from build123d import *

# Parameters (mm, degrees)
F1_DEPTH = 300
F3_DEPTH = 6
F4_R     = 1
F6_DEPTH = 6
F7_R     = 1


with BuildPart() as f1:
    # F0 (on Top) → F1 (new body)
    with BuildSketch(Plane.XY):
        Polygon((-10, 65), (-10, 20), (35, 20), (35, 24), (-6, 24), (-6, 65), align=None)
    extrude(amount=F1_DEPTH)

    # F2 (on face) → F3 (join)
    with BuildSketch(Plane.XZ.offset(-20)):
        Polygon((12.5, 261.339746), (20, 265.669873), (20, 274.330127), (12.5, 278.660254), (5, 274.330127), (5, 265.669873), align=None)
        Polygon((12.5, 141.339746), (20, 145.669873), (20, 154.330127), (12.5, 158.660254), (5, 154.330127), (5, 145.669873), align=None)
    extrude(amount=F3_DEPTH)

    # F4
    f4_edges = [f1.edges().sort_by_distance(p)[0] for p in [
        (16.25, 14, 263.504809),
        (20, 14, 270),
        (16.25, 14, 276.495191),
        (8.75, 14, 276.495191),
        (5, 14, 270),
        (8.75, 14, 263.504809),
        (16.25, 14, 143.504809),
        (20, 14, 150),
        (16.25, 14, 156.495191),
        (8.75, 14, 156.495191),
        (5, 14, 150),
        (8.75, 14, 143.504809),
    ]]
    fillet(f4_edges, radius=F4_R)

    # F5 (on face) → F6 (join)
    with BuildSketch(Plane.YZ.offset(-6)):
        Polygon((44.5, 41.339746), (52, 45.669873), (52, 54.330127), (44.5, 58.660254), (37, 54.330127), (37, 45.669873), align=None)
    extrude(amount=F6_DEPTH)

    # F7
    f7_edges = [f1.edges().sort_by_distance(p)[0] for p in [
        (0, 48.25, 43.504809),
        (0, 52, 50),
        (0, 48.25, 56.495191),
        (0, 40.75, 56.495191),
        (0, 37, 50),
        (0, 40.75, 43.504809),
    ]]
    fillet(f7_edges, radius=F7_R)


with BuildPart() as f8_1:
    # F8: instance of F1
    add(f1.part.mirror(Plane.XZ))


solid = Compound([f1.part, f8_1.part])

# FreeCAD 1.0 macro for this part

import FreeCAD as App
import Part
import Sketcher
Q = App.Units.Quantity


def edges_at(feature, points):
    """Names of the edges that pass closest to the given points."""
    edges = feature.Shape.Edges
    near = lambda p: min(range(len(edges)), key=lambda i: edges[i].distToShape(Part.Vertex(*p))[0])
    return sorted({f"Edge{near(p) + 1}" for p in points})

doc = App.newDocument("Part")
body = doc.addObject("PartDesign::Body", "Body")

# Sketch on XY plane
sketch1 = doc.addObject("Sketcher::SketchObject", "Sketch")
body.addObject(sketch1)
sketch1.AttachmentSupport = (doc.XY_Plane, [""])
sketch1.MapMode = "FlatFace"
sketch1.addGeometry(Part.LineSegment(App.Vector(-10, 65, 0), App.Vector(-10, 20, 0)), False)
sketch1.addGeometry(Part.LineSegment(App.Vector(-10, 20, 0), App.Vector(35, 20, 0)), False)
sketch1.addGeometry(Part.LineSegment(App.Vector(35, 20, 0), App.Vector(35, 24, 0)), False)
sketch1.addGeometry(Part.LineSegment(App.Vector(35, 24, 0), App.Vector(-6, 24, 0)), False)
sketch1.addGeometry(Part.LineSegment(App.Vector(-6, 24, 0), App.Vector(-6, 65, 0)), False)
sketch1.addGeometry(Part.LineSegment(App.Vector(-6, 65, 0), App.Vector(-10, 65, 0)), False)
sketch1.addConstraint(Sketcher.Constraint("Coincident", 0, 2, 1, 1))
sketch1.addConstraint(Sketcher.Constraint("Coincident", 1, 2, 2, 1))
sketch1.addConstraint(Sketcher.Constraint("Coincident", 2, 2, 3, 1))
sketch1.addConstraint(Sketcher.Constraint("Coincident", 3, 2, 4, 1))
sketch1.addConstraint(Sketcher.Constraint("Coincident", 4, 2, 5, 1))
sketch1.addConstraint(Sketcher.Constraint("Coincident", 5, 2, 0, 1))
sketch1.addConstraint(Sketcher.Constraint("Vertical", 0))
sketch1.addConstraint(Sketcher.Constraint("Horizontal", 1))
sketch1.addConstraint(Sketcher.Constraint("Vertical", 2))
sketch1.addConstraint(Sketcher.Constraint("Horizontal", 3))
sketch1.addConstraint(Sketcher.Constraint("Vertical", 4))
sketch1.addConstraint(Sketcher.Constraint("Horizontal", 5))
sketch1.addConstraint(Sketcher.Constraint("Equal", 1, 0))
sketch1.addConstraint(Sketcher.Constraint("Equal", 5, 2))
sketch1.addConstraint(Sketcher.Constraint("DistanceX", 1, 1, 1, 2, Q("45 mm")))
sketch1.addConstraint(Sketcher.Constraint("DistanceX", 3, 2, 3, 1, Q("41 mm")))
sketch1.addConstraint(Sketcher.Constraint("DistanceX", 0, 2, -1, 1, Q("10 mm")))
sketch1.addConstraint(Sketcher.Constraint("DistanceY", -1, 1, 0, 2, Q("20 mm")))
pad1 = doc.addObject("PartDesign::Pad", "Pad")
body.addObject(pad1)
pad1.Profile = sketch1
pad1.Length = 300

# Sketch on XZ plane
sketch2 = doc.addObject("Sketcher::SketchObject", "Sketch001")
body.addObject(sketch2)
sketch2.AttachmentSupport = (doc.XZ_Plane, [""])
sketch2.MapMode = "FlatFace"
sketch2.AttachmentOffset = App.Placement(App.Vector(0, 0, -20), App.Rotation())
sketch2.addGeometry(Part.LineSegment(App.Vector(12, 261, 0), App.Vector(20, 266, 0)), False)
sketch2.addGeometry(Part.LineSegment(App.Vector(20, 266, 0), App.Vector(20, 274, 0)), False)
sketch2.addGeometry(Part.LineSegment(App.Vector(20, 274, 0), App.Vector(12, 279, 0)), False)
sketch2.addGeometry(Part.LineSegment(App.Vector(12, 279, 0), App.Vector(5, 274, 0)), False)
sketch2.addGeometry(Part.LineSegment(App.Vector(5, 274, 0), App.Vector(5, 266, 0)), False)
sketch2.addGeometry(Part.LineSegment(App.Vector(5, 266, 0), App.Vector(12, 261, 0)), False)
sketch2.addGeometry(Part.LineSegment(App.Vector(12, 141, 0), App.Vector(20, 146, 0)), False)
sketch2.addGeometry(Part.LineSegment(App.Vector(20, 146, 0), App.Vector(20, 154, 0)), False)
sketch2.addGeometry(Part.LineSegment(App.Vector(20, 154, 0), App.Vector(12, 159, 0)), False)
sketch2.addGeometry(Part.LineSegment(App.Vector(12, 159, 0), App.Vector(5, 154, 0)), False)
sketch2.addGeometry(Part.LineSegment(App.Vector(5, 154, 0), App.Vector(5, 146, 0)), False)
sketch2.addGeometry(Part.LineSegment(App.Vector(5, 146, 0), App.Vector(12, 141, 0)), False)
sketch2.addConstraint(Sketcher.Constraint("Coincident", 0, 2, 1, 1))
sketch2.addConstraint(Sketcher.Constraint("Coincident", 1, 2, 2, 1))
sketch2.addConstraint(Sketcher.Constraint("Coincident", 2, 2, 3, 1))
sketch2.addConstraint(Sketcher.Constraint("Coincident", 3, 2, 4, 1))
sketch2.addConstraint(Sketcher.Constraint("Coincident", 4, 2, 5, 1))
sketch2.addConstraint(Sketcher.Constraint("Coincident", 5, 2, 0, 1))
sketch2.addConstraint(Sketcher.Constraint("Coincident", 6, 2, 7, 1))
sketch2.addConstraint(Sketcher.Constraint("Coincident", 7, 2, 8, 1))
sketch2.addConstraint(Sketcher.Constraint("Coincident", 8, 2, 9, 1))
sketch2.addConstraint(Sketcher.Constraint("Coincident", 9, 2, 10, 1))
sketch2.addConstraint(Sketcher.Constraint("Coincident", 10, 2, 11, 1))
sketch2.addConstraint(Sketcher.Constraint("Coincident", 11, 2, 6, 1))
sketch2.addConstraint(Sketcher.Constraint("Vertical", 1))
sketch2.addConstraint(Sketcher.Constraint("Vertical", 4))
sketch2.addConstraint(Sketcher.Constraint("Vertical", 7))
sketch2.addConstraint(Sketcher.Constraint("Vertical", 10))
sketch2.addConstraint(Sketcher.Constraint("Parallel", 0, 3))
sketch2.addConstraint(Sketcher.Constraint("Parallel", 2, 5))
sketch2.addConstraint(Sketcher.Constraint("Parallel", 3, 6))
sketch2.addConstraint(Sketcher.Constraint("Parallel", 5, 8))
sketch2.addConstraint(Sketcher.Constraint("Parallel", 6, 9))
sketch2.addConstraint(Sketcher.Constraint("Parallel", 8, 11))
sketch2.addConstraint(Sketcher.Constraint("Horizontal", 1, 2, 3, 2))
sketch2.addConstraint(Sketcher.Constraint("Horizontal", 0, 2, 4, 2))
sketch2.addConstraint(Sketcher.Constraint("Horizontal", 7, 2, 9, 2))
sketch2.addConstraint(Sketcher.Constraint("Horizontal", 6, 2, 10, 2))
sketch2.addConstraint(Sketcher.Constraint("Vertical", 2, 2, 5, 2))
sketch2.addConstraint(Sketcher.Constraint("Vertical", 1, 2, 6, 2))
sketch2.addConstraint(Sketcher.Constraint("Vertical", 5, 2, 8, 2))
sketch2.addConstraint(Sketcher.Constraint("Equal", 4, 7))
sketch2.addConstraint(Sketcher.Constraint("Angle", 0, Q("30 deg")))
sketch2.addConstraint(Sketcher.Constraint("DistanceX", -1, 1, 0, 2, Q("20 mm")))
sketch2.addConstraint(Sketcher.Constraint("DistanceX", -1, 1, 3, 2, Q("5 mm")))
sketch2.addConstraint(Sketcher.Constraint("DistanceY", 6, 2, 0, 2, Q("120 mm")))
sketch2.addConstraint(Sketcher.Constraint("DistanceY", 1, 1, 1, 2, Q("8.660254 mm")))
sketch2.addConstraint(Sketcher.Constraint("DistanceY", -1, 1, 0, 2, Q("265.669873 mm")))
pad2 = doc.addObject("PartDesign::Pad", "Pad001")
body.addObject(pad2)
pad2.Profile = sketch2
pad2.Length = 6
doc.recompute()

fillet = doc.addObject("PartDesign::Fillet", "Fillet")
body.addObject(fillet)
fillet.Base = (pad2, edges_at(pad2, [
    (16.25, 14, 263.505),
    (20, 14, 270),
    (16.25, 14, 276.495),
    (8.75, 14, 276.495),
    (5, 14, 270),
    (8.75, 14, 263.505),
    (16.25, 14, 143.505),
    (20, 14, 150),
    (16.25, 14, 156.495),
    (8.75, 14, 156.495),
    (5, 14, 150),
    (8.75, 14, 143.505),
]))
fillet.Radius = 1

# Sketch on YZ plane
sketch3 = doc.addObject("Sketcher::SketchObject", "Sketch002")
body.addObject(sketch3)
sketch3.AttachmentSupport = (doc.YZ_Plane, [""])
sketch3.MapMode = "FlatFace"
sketch3.AttachmentOffset = App.Placement(App.Vector(0, 0, -6), App.Rotation())
sketch3.addGeometry(Part.LineSegment(App.Vector(44, 41, 0), App.Vector(52, 46, 0)), False)
sketch3.addGeometry(Part.LineSegment(App.Vector(52, 46, 0), App.Vector(52, 54, 0)), False)
sketch3.addGeometry(Part.LineSegment(App.Vector(52, 54, 0), App.Vector(44, 59, 0)), False)
sketch3.addGeometry(Part.LineSegment(App.Vector(44, 59, 0), App.Vector(37, 54, 0)), False)
sketch3.addGeometry(Part.LineSegment(App.Vector(37, 54, 0), App.Vector(37, 46, 0)), False)
sketch3.addGeometry(Part.LineSegment(App.Vector(37, 46, 0), App.Vector(44, 41, 0)), False)
sketch3.addConstraint(Sketcher.Constraint("Coincident", 0, 2, 1, 1))
sketch3.addConstraint(Sketcher.Constraint("Coincident", 1, 2, 2, 1))
sketch3.addConstraint(Sketcher.Constraint("Coincident", 2, 2, 3, 1))
sketch3.addConstraint(Sketcher.Constraint("Coincident", 3, 2, 4, 1))
sketch3.addConstraint(Sketcher.Constraint("Coincident", 4, 2, 5, 1))
sketch3.addConstraint(Sketcher.Constraint("Coincident", 5, 2, 0, 1))
sketch3.addConstraint(Sketcher.Constraint("Vertical", 1))
sketch3.addConstraint(Sketcher.Constraint("Vertical", 4))
sketch3.addConstraint(Sketcher.Constraint("Parallel", 0, 3))
sketch3.addConstraint(Sketcher.Constraint("Parallel", 2, 5))
sketch3.addConstraint(Sketcher.Constraint("Horizontal", 1, 2, 3, 2))
sketch3.addConstraint(Sketcher.Constraint("Horizontal", 0, 2, 4, 2))
sketch3.addConstraint(Sketcher.Constraint("Vertical", 2, 2, 5, 2))
sketch3.addConstraint(Sketcher.Constraint("Angle", 0, Q("30 deg")))
sketch3.addConstraint(Sketcher.Constraint("DistanceX", -1, 1, 0, 2, Q("52 mm")))
sketch3.addConstraint(Sketcher.Constraint("DistanceX", -1, 1, 3, 2, Q("37 mm")))
sketch3.addConstraint(Sketcher.Constraint("DistanceY", 1, 1, 1, 2, Q("8.660254 mm")))
sketch3.addConstraint(Sketcher.Constraint("DistanceY", -1, 1, 0, 2, Q("45.669873 mm")))
pad3 = doc.addObject("PartDesign::Pad", "Pad002")
body.addObject(pad3)
pad3.Profile = sketch3
pad3.Length = 6
doc.recompute()

fillet2 = doc.addObject("PartDesign::Fillet", "Fillet001")
body.addObject(fillet2)
fillet2.Base = (pad3, edges_at(pad3, [
    (0, 48.25, 43.505),
    (0, 52, 50),
    (0, 48.25, 56.495),
    (0, 40.75, 56.495),
    (0, 37, 50),
    (0, 40.75, 43.505),
]))
fillet2.Radius = 1
body2 = doc.addObject("PartDesign::Body", "Body001")
doc.recompute()

mirroring = doc.addObject("Part::Mirroring", "Mirroring")
mirroring.Source = body
mirroring.Base = App.Vector(0, 0, 0)
mirroring.Normal = App.Vector(0, -1, 0)
body2.BaseFeature = mirroring
doc.recompute()
mirroring.Visibility = False

doc.recompute()
